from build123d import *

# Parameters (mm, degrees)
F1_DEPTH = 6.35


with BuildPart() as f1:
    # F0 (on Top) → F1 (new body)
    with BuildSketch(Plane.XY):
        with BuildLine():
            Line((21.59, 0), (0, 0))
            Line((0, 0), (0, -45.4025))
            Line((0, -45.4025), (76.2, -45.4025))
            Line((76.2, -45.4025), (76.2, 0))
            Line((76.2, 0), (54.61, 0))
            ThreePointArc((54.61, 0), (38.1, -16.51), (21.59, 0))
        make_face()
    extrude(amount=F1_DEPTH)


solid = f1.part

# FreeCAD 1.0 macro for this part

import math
import FreeCAD as App
import Part
import Sketcher

V = App.Vector
Q = App.Units.Quantity

doc = App.newDocument("Part")
body = doc.addObject("PartDesign::Body", "Body")

sketch1 = body.newObject("Sketcher::SketchObject", "Sketch")
sketch1.AttachmentSupport = (doc.getObject("XY_Plane"), [""])
sketch1.MapMode = "FlatFace"
sketch1.addGeometry(Part.LineSegment(V(22, 0, 0), V(0, 0, 0)), False)
sketch1.addGeometry(Part.LineSegment(V(0, 0, 0), V(0, -45, 0)), False)
sketch1.addGeometry(Part.LineSegment(V(0, -45, 0), V(76, -45, 0)), False)
sketch1.addGeometry(Part.LineSegment(V(76, -45, 0), V(76, 0, 0)), False)
sketch1.addGeometry(Part.LineSegment(V(76, 0, 0), V(55, 0, 0)), False)
sketch1.addGeometry(Part.ArcOfCircle(Part.Circle(V(38, 0, 0), V(0, 0, 1), 17), math.radians(180), math.radians(360)), False)
sketch1.addConstraint(Sketcher.Constraint("Coincident", 0, 2, 1, 1))
sketch1.addConstraint(Sketcher.Constraint("Coincident", 1, 2, 2, 1))
sketch1.addConstraint(Sketcher.Constraint("Coincident", 2, 2, 3, 1))
sketch1.addConstraint(Sketcher.Constraint("Coincident", 3, 2, 4, 1))
sketch1.addConstraint(Sketcher.Constraint("Coincident", 4, 2, 5, 2))
sketch1.addConstraint(Sketcher.Constraint("Coincident", 5, 1, 0, 1))
sketch1.addConstraint(Sketcher.Constraint("Horizontal", 0))
sketch1.addConstraint(Sketcher.Constraint("Vertical", 1))
sketch1.addConstraint(Sketcher.Constraint("Horizontal", 2))
sketch1.addConstraint(Sketcher.Constraint("Vertical", 3))
sketch1.addConstraint(Sketcher.Constraint("Horizontal", 4))
sketch1.addConstraint(Sketcher.Constraint("Coincident", 0, 2, -1, 1))
sketch1.addConstraint(Sketcher.Constraint("PointOnObject", 5, 3, -1))
sketch1.addConstraint(Sketcher.Constraint("PointOnObject", 3, 2, -1))
sketch1.addConstraint(Sketcher.Constraint("Equal", 0, 4))
sketch1.addConstraint(Sketcher.Constraint("DistanceX", 2, 1, 2, 2, Q("3 in")))
sketch1.addConstraint(Sketcher.Constraint("Radius", 5, Q("0.65 in")))
sketch1.addConstraint(Sketcher.Constraint("DistanceY", 1, 2, 1, 1, Q("1.7875 in")))
pad1 = body.newObject("PartDesign::Pad", "Pad")
pad1.Profile = sketch1
pad1.Length = Q("0.25 in")

doc.recompute()
